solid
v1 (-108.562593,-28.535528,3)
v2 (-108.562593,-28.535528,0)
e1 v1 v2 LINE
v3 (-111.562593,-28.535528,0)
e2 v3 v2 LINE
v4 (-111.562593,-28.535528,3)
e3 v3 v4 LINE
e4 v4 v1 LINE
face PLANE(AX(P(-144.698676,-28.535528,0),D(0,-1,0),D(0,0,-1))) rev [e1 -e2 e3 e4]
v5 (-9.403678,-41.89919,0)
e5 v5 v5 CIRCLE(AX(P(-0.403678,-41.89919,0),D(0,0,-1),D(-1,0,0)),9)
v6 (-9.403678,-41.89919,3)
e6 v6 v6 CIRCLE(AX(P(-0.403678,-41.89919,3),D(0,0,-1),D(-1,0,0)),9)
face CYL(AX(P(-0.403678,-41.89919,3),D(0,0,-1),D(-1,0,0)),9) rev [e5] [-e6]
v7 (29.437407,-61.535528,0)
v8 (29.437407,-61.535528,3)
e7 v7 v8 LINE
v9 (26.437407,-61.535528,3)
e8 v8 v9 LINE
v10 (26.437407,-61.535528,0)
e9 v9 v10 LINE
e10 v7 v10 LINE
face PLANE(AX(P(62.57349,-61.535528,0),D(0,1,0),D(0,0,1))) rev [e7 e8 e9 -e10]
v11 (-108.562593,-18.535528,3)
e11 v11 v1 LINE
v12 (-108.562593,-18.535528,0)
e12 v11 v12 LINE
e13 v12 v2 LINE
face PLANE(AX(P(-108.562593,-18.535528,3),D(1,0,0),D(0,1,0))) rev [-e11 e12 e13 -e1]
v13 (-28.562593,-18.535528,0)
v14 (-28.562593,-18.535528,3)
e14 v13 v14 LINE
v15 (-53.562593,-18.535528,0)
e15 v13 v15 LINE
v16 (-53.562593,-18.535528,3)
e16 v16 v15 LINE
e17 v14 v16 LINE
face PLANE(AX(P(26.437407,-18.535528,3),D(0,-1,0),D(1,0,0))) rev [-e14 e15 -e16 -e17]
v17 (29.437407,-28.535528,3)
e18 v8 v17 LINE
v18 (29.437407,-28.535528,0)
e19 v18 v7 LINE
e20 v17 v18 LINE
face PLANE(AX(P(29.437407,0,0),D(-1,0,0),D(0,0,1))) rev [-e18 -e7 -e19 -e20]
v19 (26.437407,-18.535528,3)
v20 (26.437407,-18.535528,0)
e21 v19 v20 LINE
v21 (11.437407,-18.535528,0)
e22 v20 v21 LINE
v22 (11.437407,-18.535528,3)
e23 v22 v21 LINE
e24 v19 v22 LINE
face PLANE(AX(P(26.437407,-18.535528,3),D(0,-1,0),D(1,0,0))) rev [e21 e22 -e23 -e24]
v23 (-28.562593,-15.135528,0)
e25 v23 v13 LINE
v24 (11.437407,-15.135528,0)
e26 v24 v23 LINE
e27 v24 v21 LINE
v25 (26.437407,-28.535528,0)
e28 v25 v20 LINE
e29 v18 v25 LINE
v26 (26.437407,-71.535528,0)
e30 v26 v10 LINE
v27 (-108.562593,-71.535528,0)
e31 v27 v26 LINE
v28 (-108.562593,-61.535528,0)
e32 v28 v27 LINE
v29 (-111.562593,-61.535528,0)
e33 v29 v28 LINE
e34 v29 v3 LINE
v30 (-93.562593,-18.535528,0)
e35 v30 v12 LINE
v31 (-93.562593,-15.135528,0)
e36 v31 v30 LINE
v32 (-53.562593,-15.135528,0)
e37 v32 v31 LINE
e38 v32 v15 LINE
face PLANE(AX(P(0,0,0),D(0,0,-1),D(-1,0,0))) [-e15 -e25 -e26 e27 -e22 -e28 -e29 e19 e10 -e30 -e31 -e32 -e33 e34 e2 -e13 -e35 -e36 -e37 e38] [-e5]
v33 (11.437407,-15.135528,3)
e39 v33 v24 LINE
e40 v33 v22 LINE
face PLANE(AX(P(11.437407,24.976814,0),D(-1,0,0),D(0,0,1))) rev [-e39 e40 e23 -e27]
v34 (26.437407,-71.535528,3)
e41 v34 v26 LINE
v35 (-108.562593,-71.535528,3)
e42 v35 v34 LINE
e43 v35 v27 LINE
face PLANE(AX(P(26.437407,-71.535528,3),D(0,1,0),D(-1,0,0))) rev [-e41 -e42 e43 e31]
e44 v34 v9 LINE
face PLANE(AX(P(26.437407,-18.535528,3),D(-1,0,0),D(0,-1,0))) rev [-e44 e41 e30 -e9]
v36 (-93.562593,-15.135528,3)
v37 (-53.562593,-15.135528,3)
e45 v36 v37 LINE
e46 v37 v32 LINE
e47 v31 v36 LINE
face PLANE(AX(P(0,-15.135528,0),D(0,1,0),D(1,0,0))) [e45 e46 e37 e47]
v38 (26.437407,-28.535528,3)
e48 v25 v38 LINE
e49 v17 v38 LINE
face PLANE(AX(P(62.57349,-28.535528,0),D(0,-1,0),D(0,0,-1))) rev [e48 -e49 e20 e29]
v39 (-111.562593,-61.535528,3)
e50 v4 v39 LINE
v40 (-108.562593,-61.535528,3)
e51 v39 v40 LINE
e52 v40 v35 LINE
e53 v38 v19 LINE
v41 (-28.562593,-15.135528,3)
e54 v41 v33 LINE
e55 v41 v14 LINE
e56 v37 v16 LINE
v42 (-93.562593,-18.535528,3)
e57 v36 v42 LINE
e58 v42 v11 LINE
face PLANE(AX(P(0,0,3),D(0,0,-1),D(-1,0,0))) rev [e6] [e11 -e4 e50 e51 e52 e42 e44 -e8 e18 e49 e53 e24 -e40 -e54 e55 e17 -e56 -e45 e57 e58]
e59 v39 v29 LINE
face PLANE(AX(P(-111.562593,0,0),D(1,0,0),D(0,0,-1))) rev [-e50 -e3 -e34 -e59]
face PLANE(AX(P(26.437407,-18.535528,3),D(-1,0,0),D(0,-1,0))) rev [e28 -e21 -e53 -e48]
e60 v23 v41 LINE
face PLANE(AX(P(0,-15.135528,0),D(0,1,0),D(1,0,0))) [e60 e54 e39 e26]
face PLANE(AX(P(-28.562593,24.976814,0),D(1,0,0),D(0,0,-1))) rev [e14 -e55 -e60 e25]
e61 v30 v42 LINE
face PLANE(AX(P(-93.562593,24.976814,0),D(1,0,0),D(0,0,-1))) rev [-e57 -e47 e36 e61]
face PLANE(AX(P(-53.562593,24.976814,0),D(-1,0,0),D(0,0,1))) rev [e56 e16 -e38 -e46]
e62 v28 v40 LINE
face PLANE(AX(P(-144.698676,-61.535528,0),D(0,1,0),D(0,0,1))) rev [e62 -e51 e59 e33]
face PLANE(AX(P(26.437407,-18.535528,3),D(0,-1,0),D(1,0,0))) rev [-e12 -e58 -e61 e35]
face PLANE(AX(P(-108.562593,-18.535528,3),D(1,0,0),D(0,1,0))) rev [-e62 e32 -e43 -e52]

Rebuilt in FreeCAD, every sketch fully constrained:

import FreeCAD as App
import Part
import Sketcher
from FreeCAD import Vector
Q = App.Units.Quantity


def add_polygon(sketch, points):
    """Adds a closed chain of lines whose ends are joined by coincident constraints."""
    first, n = sketch.GeometryCount, len(points)
    for a, b in zip(points, points[1:] + points[:1]):
        sketch.addGeometry(Part.LineSegment(App.Vector(*a, 0), App.Vector(*b, 0)), False)
    for i in range(n):
        sketch.addConstraint(Sketcher.Constraint("Coincident", first + i, 2, first + (i + 1) % n, 1))

doc = App.newDocument("Part")
params = doc.addObject("Spreadsheet::Sheet", "Params")
for row, (alias, value) in enumerate([
    ("sketch1_width", "135 mm"),
    ("sketch1_height", "53 mm"),
    ("pad1_length", "3 mm"),
    ("sketch2_diameter", "18 mm"),
    ("sketch3_width", "33 mm"),
    ("sketch3_height", "3 mm"),
    ("pad2_length", "3 mm"),
    ("sketch4_width", "33 mm"),
    ("sketch4_height", "3 mm"),
    ("pad3_length", "3 mm"),
    ("sketch5_width", "40 mm"),
    ("sketch5_height", "3 mm"),
    ("pad4_length", "3.4 mm"),
    ("sketch6_width", "40 mm"),
    ("sketch6_height", "3 mm"),
    ("pad5_length", "3.4 mm"),
], start=1):
    params.set(f"A{row}", alias)
    params.set(f"B{row}", "=" + value)
    params.setAlias(f"B{row}", alias)

body = doc.addObject("PartDesign::Body", "Body")

sketch1 = body.newObject("Sketcher::SketchObject", "Sketch")
sketch1.AttachmentSupport = (doc.getObject("XY_Plane"), [""])
sketch1.MapMode = "FlatFace"
add_polygon(sketch1, [(-109, -19), (-109, -72), (26, -72), (26, -19)])
sketch1.addConstraint([
    Sketcher.Constraint("Vertical", 0),
    Sketcher.Constraint("Horizontal", 1),
    Sketcher.Constraint("Vertical", 2),
    Sketcher.Constraint("Horizontal", 3),
    Sketcher.Constraint("DistanceX", 1, 1, 1, 2, Q("135 mm")),
    Sketcher.Constraint("DistanceY", 0, 2, 0, 1, Q("53 mm")),
    Sketcher.Constraint("DistanceY", 0, 2, -1, 1, Q("71.535528 mm")),
    Sketcher.Constraint("DistanceX", 0, 2, -1, 1, Q("108.562593 mm")),
])
sketch1.setExpression("Constraints[8]", "Params.sketch1_width")
sketch1.setExpression("Constraints[9]", "Params.sketch1_height")
pad1 = body.newObject("PartDesign::Pad", "Pad")
pad1.Profile = sketch1
pad1.setExpression("Length", "Params.pad1_length")

sketch2 = body.newObject("Sketcher::SketchObject", "Sketch001")
sketch2.AttachmentSupport = (doc.getObject("XY_Plane"), [""])
sketch2.MapMode = "FlatFace"
sketch2.addGeometry(Part.Circle(Vector(0, -42, 0), Vector(0, 0, 1), 9), False)
sketch2.addConstraint([
    Sketcher.Constraint("Diameter", 0, Q("18 mm")),
    Sketcher.Constraint("DistanceY", 0, 3, -1, 1, Q("41.89919 mm")),
    Sketcher.Constraint("DistanceX", 0, 3, -1, 1, Q("0.403678 mm")),
])
sketch2.setExpression("Constraints[0]", "Params.sketch2_diameter")
pocket1 = body.newObject("PartDesign::Pocket", "Pocket")
pocket1.Profile = sketch2
pocket1.Type = "ThroughAll"
pocket1.Reversed = True

sketch3 = body.newObject("Sketcher::SketchObject", "Sketch002")
sketch3.AttachmentSupport = (doc.getObject("YZ_Plane"), [""])
sketch3.MapMode = "FlatFace"
sketch3.AttachmentOffset = App.Placement(Vector(0, 0, 26.437407), App.Rotation())
add_polygon(sketch3, [(-28.5, 3), (-61.5, 3), (-61.5, 0), (-28.5, 0)])
sketch3.addConstraint([
    Sketcher.Constraint("Horizontal", 0),
    Sketcher.Constraint("Vertical", 1),
    Sketcher.Constraint("Horizontal", 2),
    Sketcher.Constraint("Vertical", 3),
    Sketcher.Constraint("PointOnObject", 1, 2, -1),
    Sketcher.Constraint("DistanceX", 0, 2, 0, 1, Q("33 mm")),
    Sketcher.Constraint("DistanceY", 1, 2, 1, 1, Q("3 mm")),
    Sketcher.Constraint("DistanceX", 0, 2, -1, 1, Q("61.535528 mm")),
])
sketch3.setExpression("Constraints[9]", "Params.sketch3_width")
sketch3.setExpression("Constraints[10]", "Params.sketch3_height")
pad2 = body.newObject("PartDesign::Pad", "Pad001")
pad2.Profile = sketch3
pad2.setExpression("Length", "Params.pad2_length")

sketch4 = body.newObject("Sketcher::SketchObject", "Sketch003")
sketch4.AttachmentSupport = (doc.getObject("YZ_Plane"), [""])
sketch4.MapMode = "FlatFace"
sketch4.AttachmentOffset = App.Placement(Vector(0, 0, -108.562593), App.Rotation())
add_polygon(sketch4, [(-28.5, 0), (-61.5, 0), (-61.5, 3), (-28.5, 3)])
sketch4.addConstraint([
    Sketcher.Constraint("Horizontal", 0),
    Sketcher.Constraint("Vertical", 1),
    Sketcher.Constraint("Horizontal", 2),
    Sketcher.Constraint("Vertical", 3),
    Sketcher.Constraint("PointOnObject", 0, 2, -1),
    Sketcher.Constraint("DistanceX", 0, 2, 0, 1, Q("33 mm")),
    Sketcher.Constraint("DistanceY", 1, 1, 1, 2, Q("3 mm")),
    Sketcher.Constraint("DistanceX", 0, 2, -1, 1, Q("61.535528 mm")),
])
sketch4.setExpression("Constraints[9]", "Params.sketch4_width")
sketch4.setExpression("Constraints[10]", "Params.sketch4_height")
pad3 = body.newObject("PartDesign::Pad", "Pad002")
pad3.Profile = sketch4
pad3.setExpression("Length", "Params.pad3_length")
pad3.Reversed = True

sketch5 = body.newObject("Sketcher::SketchObject", "Sketch004")
sketch5.AttachmentSupport = (doc.getObject("XZ_Plane"), [""])
sketch5.MapMode = "FlatFace"
sketch5.AttachmentOffset = App.Placement(Vector(0, 0, 18.535528), App.Rotation())
add_polygon(sketch5, [(-93.6, 0), (-93.6, 3), (-53.6, 3), (-53.6, 0)])
sketch5.addConstraint([
    Sketcher.Constraint("Vertical", 0),
    Sketcher.Constraint("Horizontal", 1),
    Sketcher.Constraint("Vertical", 2),
    Sketcher.Constraint("Horizontal", 3),
    Sketcher.Constraint("PointOnObject", 2, 2, -1),
    Sketcher.Constraint("DistanceX", 1, 1, 1, 2, Q("40 mm")),
    Sketcher.Constraint("DistanceY", 0, 1, 0, 2, Q("3 mm")),
    Sketcher.Constraint("DistanceX", 0, 2, -1, 1, Q("93.562593 mm")),
])
sketch5.setExpression("Constraints[9]", "Params.sketch5_width")
sketch5.setExpression("Constraints[10]", "Params.sketch5_height")
pad4 = body.newObject("PartDesign::Pad", "Pad003")
pad4.Profile = sketch5
pad4.setExpression("Length", "Params.pad4_length")
pad4.Reversed = True

sketch6 = body.newObject("Sketcher::SketchObject", "Sketch005")
sketch6.AttachmentSupport = (doc.getObject("XZ_Plane"), [""])
sketch6.MapMode = "FlatFace"
sketch6.AttachmentOffset = App.Placement(Vector(0, 0, 18.535528), App.Rotation())
add_polygon(sketch6, [(-28.6, 0), (-28.6, 3), (11.4, 3), (11.4, 0)])
sketch6.addConstraint([
    Sketcher.Constraint("Vertical", 0),
    Sketcher.Constraint("Horizontal", 1),
    Sketcher.Constraint("Vertical", 2),
    Sketcher.Constraint("Horizontal", 3),
    Sketcher.Constraint("PointOnObject", 2, 2, -1),
    Sketcher.Constraint("DistanceX", 1, 1, 1, 2, Q("40 mm")),
    Sketcher.Constraint("DistanceY", 0, 1, 0, 2, Q("3 mm")),
    Sketcher.Constraint("DistanceX", 0, 2, -1, 1, Q("28.562593 mm")),
])
sketch6.setExpression("Constraints[9]", "Params.sketch6_width")
sketch6.setExpression("Constraints[10]", "Params.sketch6_height")
pad5 = body.newObject("PartDesign::Pad", "Pad004")
pad5.Profile = sketch6
pad5.setExpression("Length", "Params.pad5_length")
pad5.Reversed = True

doc.recompute()
